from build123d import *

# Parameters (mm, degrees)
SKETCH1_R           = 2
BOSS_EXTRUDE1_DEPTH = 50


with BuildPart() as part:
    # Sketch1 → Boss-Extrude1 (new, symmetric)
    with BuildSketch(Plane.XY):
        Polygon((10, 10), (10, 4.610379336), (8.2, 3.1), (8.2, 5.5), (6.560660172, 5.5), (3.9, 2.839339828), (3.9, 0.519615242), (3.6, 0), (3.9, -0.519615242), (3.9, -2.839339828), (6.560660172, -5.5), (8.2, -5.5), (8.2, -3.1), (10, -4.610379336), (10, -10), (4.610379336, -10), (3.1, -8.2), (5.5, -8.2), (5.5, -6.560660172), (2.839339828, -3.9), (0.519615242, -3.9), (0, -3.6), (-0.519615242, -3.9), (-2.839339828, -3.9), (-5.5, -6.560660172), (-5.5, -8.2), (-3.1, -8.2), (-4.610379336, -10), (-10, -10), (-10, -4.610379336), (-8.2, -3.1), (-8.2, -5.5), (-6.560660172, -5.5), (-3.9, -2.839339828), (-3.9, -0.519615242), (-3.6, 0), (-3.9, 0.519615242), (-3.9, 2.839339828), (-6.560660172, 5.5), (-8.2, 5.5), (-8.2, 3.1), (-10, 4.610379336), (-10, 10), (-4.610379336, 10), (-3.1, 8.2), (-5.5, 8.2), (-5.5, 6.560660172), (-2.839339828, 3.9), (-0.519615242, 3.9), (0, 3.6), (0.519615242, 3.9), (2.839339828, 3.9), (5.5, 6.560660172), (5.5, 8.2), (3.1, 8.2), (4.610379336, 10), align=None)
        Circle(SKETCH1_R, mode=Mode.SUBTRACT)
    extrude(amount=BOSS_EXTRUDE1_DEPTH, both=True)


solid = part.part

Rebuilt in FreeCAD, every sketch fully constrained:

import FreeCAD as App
import Part
import Sketcher
Q = App.Units.Quantity


def add_polygon(sketch, points):
    """Adds a closed chain of lines whose ends are joined by coincident constraints."""
    first, n = sketch.GeometryCount, len(points)
    for a, b in zip(points, points[1:] + points[:1]):
        sketch.addGeometry(Part.LineSegment(App.Vector(*a, 0), App.Vector(*b, 0)), False)
    for i in range(n):
        sketch.addConstraint(Sketcher.Constraint("Coincident", first + i, 2, first + (i + 1) % n, 1))

doc = App.newDocument("Part")
body = doc.addObject("PartDesign::Body", "Body")

# Sketch on XY plane
sketch1 = body.newObject("Sketcher::SketchObject", "Sketch")
sketch1.AttachmentSupport = (doc.getObject("XY_Plane"), [""])
sketch1.MapMode = "FlatFace"
add_polygon(sketch1, [(10, 4.6), (10, 10), (4.6, 10), (3.1, 8.2), (5.5, 8.2), (5.5, 6.6), (2.8, 3.9), (0.5, 3.9), (0, 3.6), (-0.5, 3.9), (-2.8, 3.9), (-5.5, 6.6), (-5.5, 8.2), (-3.1, 8.2), (-4.6, 10), (-10, 10), (-10, 4.6), (-8.2, 3.1), (-8.2, 5.5), (-6.6, 5.5), (-3.9, 2.8), (-3.9, 0.5), (-3.6, 0), (-3.9, -0.5), (-3.9, -2.8), (-6.6, -5.5), (-8.2, -5.5), (-8.2, -3.1), (-10, -4.6), (-10, -10), (-4.6, -10), (-3.1, -8.2), (-5.5, -8.2), (-5.5, -6.6), (-2.8, -3.9), (-0.5, -3.9), (0, -3.6), (0.5, -3.9), (2.8, -3.9), (5.5, -6.6), (5.5, -8.2), (3.1, -8.2), (4.6, -10), (10, -10), (10, -4.6), (8.2, -3.1), (8.2, -5.5), (6.6, -5.5), (3.9, -2.8), (3.9, -0.5), (3.6, 0), (3.9, 0.5), (3.9, 2.8), (6.6, 5.5), (8.2, 5.5), (8.2, 3.1)])  # lines 0-55
sketch1.addGeometry(Part.Circle(App.Vector(0, 0, 0), App.Vector(0, 0, 1), 2), False)  # 56
sketch1.addConstraint([
    Sketcher.Constraint("Vertical", 0),
    Sketcher.Constraint("Horizontal", 1),
    Sketcher.Constraint("Horizontal", 3),
    Sketcher.Constraint("Vertical", 4),
    Sketcher.Constraint("Horizontal", 6),
    Sketcher.Constraint("Horizontal", 9),
    Sketcher.Constraint("Vertical", 11),
    Sketcher.Constraint("Horizontal", 12),
    Sketcher.Constraint("Horizontal", 14),
    Sketcher.Constraint("Vertical", 15),
    Sketcher.Constraint("Vertical", 17),
    Sketcher.Constraint("Horizontal", 18),
    Sketcher.Constraint("Vertical", 20),
    Sketcher.Constraint("Vertical", 23),
    Sketcher.Constraint("Horizontal", 25),
    Sketcher.Constraint("Vertical", 26),
    Sketcher.Constraint("Vertical", 28),
    Sketcher.Constraint("Horizontal", 29),
    Sketcher.Constraint("Horizontal", 31),
    Sketcher.Constraint("Vertical", 32),
    Sketcher.Constraint("Horizontal", 34),
    Sketcher.Constraint("Horizontal", 37),
    Sketcher.Constraint("Vertical", 39),
    Sketcher.Constraint("Horizontal", 40),
    Sketcher.Constraint("Horizontal", 42),
    Sketcher.Constraint("Vertical", 43),
    Sketcher.Constraint("Vertical", 45),
    Sketcher.Constraint("Horizontal", 46),
    Sketcher.Constraint("Vertical", 48),
    Sketcher.Constraint("Vertical", 51),
    Sketcher.Constraint("Horizontal", 53),
    Sketcher.Constraint("Vertical", 54),
    Sketcher.Constraint("Coincident", 56, 3, -1, 1),
    Sketcher.Constraint("Symmetric", 0, 2, 28, 2, -1, 1),
    Sketcher.Constraint("Symmetric", 2, 2, 30, 2, -1, 1),
    Sketcher.Constraint("Symmetric", 4, 2, 32, 2, -1, 1),
    Sketcher.Constraint("Symmetric", 5, 2, 33, 2, -1, 1),
    Sketcher.Constraint("Symmetric", 7, 2, 35, 2, -1, 1),
    Sketcher.Constraint("Symmetric", 8, 2, 36, 2, -1, 1),
    Sketcher.Constraint("Symmetric", 10, 2, 38, 2, -1, 1),
    Sketcher.Constraint("Symmetric", 12, 2, 40, 2, -1, 1),
    Sketcher.Constraint("Symmetric", 13, 2, 41, 2, -1, 1),
    Sketcher.Constraint("Symmetric", 15, 2, 43, 2, -1, 1),
    Sketcher.Constraint("Symmetric", 16, 2, 44, 2, -1, 1),
    Sketcher.Constraint("Symmetric", 18, 2, 46, 2, -1, 1),
    Sketcher.Constraint("Symmetric", 19, 2, 47, 2, -1, 1),
    Sketcher.Constraint("Symmetric", 21, 2, 49, 2, -1, 1),
    Sketcher.Constraint("Symmetric", 22, 2, 50, 2, -1, 1),
    Sketcher.Constraint("Symmetric", 24, 2, 52, 2, -1, 1),
    Sketcher.Constraint("Symmetric", 26, 2, 54, 2, -1, 1),
    Sketcher.Constraint("Symmetric", 6, 2, 8, 2, -2),
    Sketcher.Constraint("Symmetric", 4, 2, 10, 2, -2),
    Sketcher.Constraint("Symmetric", 2, 2, 12, 2, -2),
    Sketcher.Constraint("Symmetric", 1, 2, 13, 2, -2),
    Sketcher.Constraint("Symmetric", 27, 2, 43, 2, -2),
    Sketcher.Constraint("Symmetric", 26, 2, 44, 2, -2),
    Sketcher.Constraint("Symmetric", 24, 2, 46, 2, -2),
    Sketcher.Constraint("Symmetric", 23, 2, 47, 2, -2),
    Sketcher.Constraint("PointOnObject", 7, 2, -2),
    Sketcher.Constraint("PointOnObject", 21, 2, -1),
    Sketcher.Constraint("Perpendicular", 5, 10),
    Sketcher.Constraint("Perpendicular", 2, 16),
    Sketcher.Constraint("Parallel", 10, 19),
    Sketcher.Constraint("Perpendicular", 7, 21),
    Sketcher.Constraint("Perpendicular", 8, 22),
    Sketcher.Constraint("Perpendicular", 19, 24),
    Sketcher.Constraint("Perpendicular", 16, 30),
    Sketcher.Constraint("Perpendicular", 21, 35),
    Sketcher.Constraint("Perpendicular", 33, 38),
    Sketcher.Constraint("Perpendicular", 35, 49),
    Sketcher.Constraint("Perpendicular", 47, 52),
    Sketcher.Constraint("Perpendicular", 41, 55),
    Sketcher.Constraint("Equal", 42, 0),
    Sketcher.Constraint("Equal", 53, 4),
    Sketcher.Constraint("Equal", 40, 17),
    Sketcher.Constraint("Equal", 37, 20),
    Sketcher.Constraint("Equal", 13, 16),
    Sketcher.Constraint("Equal", 10, 19),
    Sketcher.Constraint("Equal", 8, 21),
    Sketcher.Constraint("Diameter", 56, 4.0),
    Sketcher.Constraint("Angle", 2, Q("-130 deg")),
    Sketcher.Constraint("Angle", 7, Q("-150 deg")),
    Sketcher.Constraint("DistanceX", 3, 1, 3, 2, 2.4),
    Sketcher.Constraint("DistanceX", -1, 1, 0, 2, 10.0),
    Sketcher.Constraint("Distance", 7, 0.6),
    Sketcher.Constraint("DistanceX", -1, 1, 2, 2, 3.1),
    Sketcher.Constraint("DistanceY", -1, 1, 2, 2, 8.2),
    Sketcher.Constraint("DistanceY", -1, 1, 5, 2, 3.9),
    Sketcher.Constraint("DistanceX", 18, 1, 18, 2, 1.63934),
])
pad1 = body.newObject("PartDesign::Pad", "Pad")
pad1.Profile = sketch1
pad1.Length = 100
pad1.Midplane = True

doc.recompute()
